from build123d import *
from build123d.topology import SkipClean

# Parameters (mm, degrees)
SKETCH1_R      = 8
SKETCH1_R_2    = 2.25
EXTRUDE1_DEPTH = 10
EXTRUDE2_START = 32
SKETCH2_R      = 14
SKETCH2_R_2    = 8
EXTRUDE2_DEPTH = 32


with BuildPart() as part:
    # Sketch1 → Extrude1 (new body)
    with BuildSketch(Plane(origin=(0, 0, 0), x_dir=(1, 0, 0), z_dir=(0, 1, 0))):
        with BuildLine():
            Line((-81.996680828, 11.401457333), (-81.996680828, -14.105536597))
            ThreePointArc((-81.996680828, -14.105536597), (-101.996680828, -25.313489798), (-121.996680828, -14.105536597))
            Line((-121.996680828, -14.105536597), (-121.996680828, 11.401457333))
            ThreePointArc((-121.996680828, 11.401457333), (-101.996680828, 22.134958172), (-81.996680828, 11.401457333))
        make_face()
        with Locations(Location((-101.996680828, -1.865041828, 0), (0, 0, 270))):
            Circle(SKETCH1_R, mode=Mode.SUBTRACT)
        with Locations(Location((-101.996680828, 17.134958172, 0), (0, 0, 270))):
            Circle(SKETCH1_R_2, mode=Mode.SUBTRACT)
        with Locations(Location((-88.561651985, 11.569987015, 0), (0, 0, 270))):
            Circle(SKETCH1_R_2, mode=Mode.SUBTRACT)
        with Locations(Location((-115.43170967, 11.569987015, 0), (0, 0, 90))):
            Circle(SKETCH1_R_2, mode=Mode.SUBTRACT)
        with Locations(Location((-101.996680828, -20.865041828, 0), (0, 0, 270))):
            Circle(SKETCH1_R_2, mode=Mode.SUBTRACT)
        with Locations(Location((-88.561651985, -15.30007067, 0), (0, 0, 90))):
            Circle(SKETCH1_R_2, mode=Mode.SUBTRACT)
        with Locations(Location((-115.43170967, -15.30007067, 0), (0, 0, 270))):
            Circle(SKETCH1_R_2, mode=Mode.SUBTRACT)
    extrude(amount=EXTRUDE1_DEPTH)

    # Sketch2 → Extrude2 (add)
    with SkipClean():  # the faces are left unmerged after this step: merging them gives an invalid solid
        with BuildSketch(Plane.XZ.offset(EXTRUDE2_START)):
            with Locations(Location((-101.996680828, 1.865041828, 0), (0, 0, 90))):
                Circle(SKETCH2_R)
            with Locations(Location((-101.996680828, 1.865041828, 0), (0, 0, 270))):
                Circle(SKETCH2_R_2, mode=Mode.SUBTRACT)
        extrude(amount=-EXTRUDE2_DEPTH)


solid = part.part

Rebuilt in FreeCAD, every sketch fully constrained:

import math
import FreeCAD as App
import Part
import Sketcher

V = App.Vector

doc = App.newDocument("Part")
body = doc.addObject("PartDesign::Body", "Body")

sketch1 = body.newObject("Sketcher::SketchObject", "Sketch")
sketch1.AttachmentSupport = (doc.getObject("XZ_Plane"), [""])
sketch1.MapMode = "FlatFace"
sketch1.addGeometry([
    Part.LineSegment(V(-81.996681, 14.105537, 0), V(-81.996681, -11.401457, 0)),
    Part.ArcOfCircle(Part.Circle(V(-101.996681, 1.865042, 0), V(0, 0, 1), 24), math.radians(-146.44269), math.radians(-33.55731)),
    Part.LineSegment(V(-121.996681, -11.401457, 0), V(-121.996681, 14.105537, 0)),
    Part.ArcOfCircle(Part.Circle(V(-101.996681, 1.865042, 0), V(0, 0, 1), 23.448448), math.radians(31.467663), math.radians(148.532337)),
    Part.Circle(V(-88.561652, 15.300071, 0), V(0, 0, 1), 2.25),
    Part.Circle(V(-101.996681, 20.865042, 0), V(0, 0, 1), 2.25),
    Part.Circle(V(-115.43171, 15.300071, 0), V(0, 0, 1), 2.25),
    Part.Circle(V(-101.996681, 1.865042, 0), V(0, 0, 1), 8),
    Part.Circle(V(-88.561652, -11.569987, 0), V(0, 0, 1), 2.25),
    Part.Circle(V(-101.996681, -17.134958, 0), V(0, 0, 1), 2.25),
    Part.Circle(V(-115.43171, -11.569987, 0), V(0, 0, 1), 2.25),
], False)
sketch1.addConstraint([
    Sketcher.Constraint("Coincident", 0, 2, 1, 2),
    Sketcher.Constraint("Coincident", 1, 1, 2, 1),
    Sketcher.Constraint("Coincident", 2, 2, 3, 2),
    Sketcher.Constraint("Coincident", 3, 1, 0, 1),
    Sketcher.Constraint("Vertical", 0),
    Sketcher.Constraint("Vertical", 2),
    Sketcher.Constraint("Coincident", 3, 3, 1, 3),
    Sketcher.Constraint("Coincident", 7, 3, 1, 3),
    Sketcher.Constraint("Equal", 4, 5),
    Sketcher.Constraint("Equal", 5, 6),
    Sketcher.Constraint("Equal", 6, 8),
    Sketcher.Constraint("Equal", 8, 9),
    Sketcher.Constraint("Equal", 9, 10),
    Sketcher.Constraint("Horizontal", 4, 3, 6, 3),
    Sketcher.Constraint("Horizontal", 8, 3, 10, 3),
    Sketcher.Constraint("Horizontal", 0, 2, 1, 1),
    Sketcher.Constraint("Vertical", 3, 3, 5, 3),
    Sketcher.Constraint("Vertical", 4, 3, 8, 3),
    Sketcher.Constraint("Vertical", 7, 3, 9, 3),
    Sketcher.Constraint("Vertical", 6, 3, 10, 3),
    Sketcher.Constraint("Diameter", 7, 16.0),
    Sketcher.Constraint("Radius", 1, 24.0),
    Sketcher.Constraint("Diameter", 4, 4.5),
    Sketcher.Constraint("DistanceY", 3, 3, 5, 3, 19.0),
    Sketcher.Constraint("DistanceY", 9, 3, 1, 3, 19.0),
    Sketcher.Constraint("DistanceX", 9, 3, 0, 2, 20.0),
    Sketcher.Constraint("Radius", 3, 23.448448),
    Sketcher.Constraint("DistanceX", 1, 3, -1, 1, 101.996681),
    Sketcher.Constraint("DistanceY", -1, 1, 1, 3, 1.865042),
    Sketcher.Constraint("DistanceX", 4, 3, -1, 1, 88.561652),
    Sketcher.Constraint("DistanceY", -1, 1, 4, 3, 15.300071),
    Sketcher.Constraint("DistanceX", 6, 3, -1, 1, 115.43171),
    Sketcher.Constraint("DistanceY", 8, 3, 1, 3, 13.435029),
])
pad1 = body.newObject("PartDesign::Pad", "Pad")
pad1.Profile = sketch1
pad1.Length = 10
pad1.Reversed = True

sketch2 = body.newObject("Sketcher::SketchObject", "Sketch001")
sketch2.AttachmentSupport = (doc.getObject("XZ_Plane"), [""])
sketch2.MapMode = "FlatFace"
sketch2.AttachmentOffset = App.Placement(V(0, 0, 32), App.Rotation())
sketch2.addGeometry([
    Part.Circle(V(-101.996681, 1.865042, 0), V(0, 0, 1), 14),
    Part.Circle(V(-101.996681, 1.865042, 0), V(0, 0, 1), 8),
], False)
sketch2.addConstraint([
    Sketcher.Constraint("Coincident", 1, 3, 0, 3),
    Sketcher.Constraint("Diameter", 0, 28.0),
    Sketcher.Constraint("Diameter", 1, 16.0),
    Sketcher.Constraint("DistanceX", 0, 3, -1, 1, 101.996681),
    Sketcher.Constraint("DistanceY", -1, 1, 0, 3, 1.865042),
])
pad2 = body.newObject("PartDesign::Pad", "Pad001")
pad2.Profile = sketch2
pad2.Length = 32
pad2.Reversed = True

doc.recompute()
